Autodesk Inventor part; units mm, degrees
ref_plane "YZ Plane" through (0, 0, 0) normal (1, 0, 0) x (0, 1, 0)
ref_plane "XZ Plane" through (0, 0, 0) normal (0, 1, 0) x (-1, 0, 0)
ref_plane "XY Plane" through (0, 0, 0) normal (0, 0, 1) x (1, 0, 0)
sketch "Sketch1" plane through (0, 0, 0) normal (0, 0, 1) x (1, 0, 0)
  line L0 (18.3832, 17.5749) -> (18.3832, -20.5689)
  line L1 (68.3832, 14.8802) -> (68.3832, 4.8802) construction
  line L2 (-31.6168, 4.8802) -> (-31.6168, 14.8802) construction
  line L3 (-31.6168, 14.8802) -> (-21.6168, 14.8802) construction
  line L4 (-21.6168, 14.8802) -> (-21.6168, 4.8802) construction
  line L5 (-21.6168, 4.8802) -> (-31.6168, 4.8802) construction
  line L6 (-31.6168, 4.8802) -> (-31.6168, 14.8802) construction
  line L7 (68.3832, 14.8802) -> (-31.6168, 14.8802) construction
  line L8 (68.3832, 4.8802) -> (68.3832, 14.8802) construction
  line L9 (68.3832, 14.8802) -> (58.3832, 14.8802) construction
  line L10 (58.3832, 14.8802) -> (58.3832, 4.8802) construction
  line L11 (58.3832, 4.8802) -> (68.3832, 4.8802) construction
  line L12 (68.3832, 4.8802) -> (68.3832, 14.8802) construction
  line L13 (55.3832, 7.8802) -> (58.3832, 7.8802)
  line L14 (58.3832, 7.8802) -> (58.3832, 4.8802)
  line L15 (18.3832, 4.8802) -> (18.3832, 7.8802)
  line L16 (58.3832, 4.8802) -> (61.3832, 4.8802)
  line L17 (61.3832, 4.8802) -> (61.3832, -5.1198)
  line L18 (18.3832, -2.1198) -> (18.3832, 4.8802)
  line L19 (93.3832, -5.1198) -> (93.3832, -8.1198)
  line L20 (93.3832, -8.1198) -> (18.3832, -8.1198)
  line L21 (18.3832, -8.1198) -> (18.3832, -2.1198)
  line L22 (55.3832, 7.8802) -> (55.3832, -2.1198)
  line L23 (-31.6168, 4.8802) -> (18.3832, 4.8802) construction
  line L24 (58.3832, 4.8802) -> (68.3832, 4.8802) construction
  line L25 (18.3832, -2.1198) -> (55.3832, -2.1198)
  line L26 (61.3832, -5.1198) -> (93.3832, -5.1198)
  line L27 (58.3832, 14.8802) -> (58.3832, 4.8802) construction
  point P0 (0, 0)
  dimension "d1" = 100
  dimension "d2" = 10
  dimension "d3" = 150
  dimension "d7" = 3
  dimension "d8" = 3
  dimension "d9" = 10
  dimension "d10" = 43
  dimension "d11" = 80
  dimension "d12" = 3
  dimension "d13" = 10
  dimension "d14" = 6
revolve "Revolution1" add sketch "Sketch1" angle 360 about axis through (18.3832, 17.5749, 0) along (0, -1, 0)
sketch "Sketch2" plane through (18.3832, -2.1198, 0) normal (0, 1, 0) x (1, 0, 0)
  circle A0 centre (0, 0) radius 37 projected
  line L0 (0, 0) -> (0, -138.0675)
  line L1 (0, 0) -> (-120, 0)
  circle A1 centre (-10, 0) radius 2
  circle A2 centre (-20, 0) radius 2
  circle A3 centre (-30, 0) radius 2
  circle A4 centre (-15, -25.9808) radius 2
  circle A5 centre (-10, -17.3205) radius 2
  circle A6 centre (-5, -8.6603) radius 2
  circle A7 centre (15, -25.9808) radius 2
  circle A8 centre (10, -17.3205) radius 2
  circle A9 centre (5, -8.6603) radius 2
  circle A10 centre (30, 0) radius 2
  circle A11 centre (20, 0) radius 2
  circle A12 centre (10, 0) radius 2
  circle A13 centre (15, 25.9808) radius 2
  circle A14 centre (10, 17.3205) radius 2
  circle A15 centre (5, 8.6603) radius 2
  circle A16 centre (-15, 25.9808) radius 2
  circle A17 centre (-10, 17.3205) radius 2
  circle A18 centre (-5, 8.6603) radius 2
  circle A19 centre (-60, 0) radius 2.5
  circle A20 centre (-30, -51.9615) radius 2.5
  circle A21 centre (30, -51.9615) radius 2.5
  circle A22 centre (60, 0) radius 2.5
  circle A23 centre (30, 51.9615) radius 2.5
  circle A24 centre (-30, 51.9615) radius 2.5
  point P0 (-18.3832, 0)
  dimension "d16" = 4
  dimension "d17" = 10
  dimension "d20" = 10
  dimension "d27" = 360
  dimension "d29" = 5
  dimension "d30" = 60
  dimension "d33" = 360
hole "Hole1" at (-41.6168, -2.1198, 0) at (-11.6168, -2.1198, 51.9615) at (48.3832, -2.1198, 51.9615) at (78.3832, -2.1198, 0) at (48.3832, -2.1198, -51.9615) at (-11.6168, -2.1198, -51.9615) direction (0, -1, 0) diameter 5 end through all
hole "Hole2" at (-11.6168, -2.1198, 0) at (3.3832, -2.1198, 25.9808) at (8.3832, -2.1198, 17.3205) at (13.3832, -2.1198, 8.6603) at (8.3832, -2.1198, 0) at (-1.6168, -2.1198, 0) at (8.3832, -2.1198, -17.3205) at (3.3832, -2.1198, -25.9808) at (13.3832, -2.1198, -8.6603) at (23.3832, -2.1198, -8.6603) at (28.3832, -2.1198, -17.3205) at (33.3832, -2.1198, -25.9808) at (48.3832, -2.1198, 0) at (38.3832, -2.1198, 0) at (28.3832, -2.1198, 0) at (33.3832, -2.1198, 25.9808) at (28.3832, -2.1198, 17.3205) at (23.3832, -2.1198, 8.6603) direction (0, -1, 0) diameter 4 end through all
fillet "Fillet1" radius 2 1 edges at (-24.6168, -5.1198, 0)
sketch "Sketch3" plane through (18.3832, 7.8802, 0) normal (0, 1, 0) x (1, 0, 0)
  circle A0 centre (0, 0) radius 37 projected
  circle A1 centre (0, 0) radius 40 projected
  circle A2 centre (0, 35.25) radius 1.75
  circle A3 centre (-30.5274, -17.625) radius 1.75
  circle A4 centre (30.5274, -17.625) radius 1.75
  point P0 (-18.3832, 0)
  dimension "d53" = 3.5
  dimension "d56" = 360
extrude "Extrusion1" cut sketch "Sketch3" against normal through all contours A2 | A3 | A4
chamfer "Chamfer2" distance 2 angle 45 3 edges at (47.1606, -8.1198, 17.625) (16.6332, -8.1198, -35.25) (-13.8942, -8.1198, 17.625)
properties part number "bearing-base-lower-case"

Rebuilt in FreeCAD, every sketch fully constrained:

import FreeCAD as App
import Part
import Sketcher
from FreeCAD import Vector


def edges_at(feature, points):
    """Names of the edges that pass closest to the given points."""
    edges = feature.Shape.Edges
    near = lambda p: min(range(len(edges)), key=lambda i: edges[i].distToShape(Part.Vertex(*p))[0])
    return sorted({f"Edge{near(p) + 1}" for p in points})


def add_polygon(sketch, points):
    """Adds a closed chain of lines whose ends are joined by coincident constraints."""
    first, n = sketch.GeometryCount, len(points)
    for a, b in zip(points, points[1:] + points[:1]):
        sketch.addGeometry(Part.LineSegment(App.Vector(*a, 0), App.Vector(*b, 0)), False)
    for i in range(n):
        sketch.addConstraint(Sketcher.Constraint("Coincident", first + i, 2, first + (i + 1) % n, 1))

doc = App.newDocument("Part")
params = doc.addObject("Spreadsheet::Sheet", "Params")
for row, (alias, value) in enumerate([
    ("sketch1_width", "3 mm"),
    ("sketch1_height", "10 mm"),
    ("sketch1_width2", "75 mm"),
    ("revolution_angle", "360 deg"),
    ("sketch2_diameter", "5 mm"),
    ("hole_diameter", "5 mm"),
    ("sketch3_diameter", "4 mm"),
    ("hole2_diameter", "4 mm"),
    ("fillet_radius", "2 mm"),
    ("sketch4_diameter", "3.5 mm"),
    ("chamfer_size", "2 mm"),
], start=1):
    params.set(f"A{row}", alias)
    params.set(f"B{row}", "=" + value)
    params.setAlias(f"B{row}", alias)

body = doc.addObject("PartDesign::Body", "Body")

sketch1 = doc.addObject("Sketcher::SketchObject", "Sketch")
body.addObject(sketch1)
sketch1.AttachmentSupport = (doc.XY_Plane, [""])
sketch1.MapMode = "FlatFace"
add_polygon(sketch1, [(55.4, -2.1), (18.4, -2.1), (18.4, -8.1), (93.4, -8.1), (93.4, -5.1), (61.4, -5.1), (61.4, 4.9), (58.4, 4.9), (58.4, 7.9), (55.4, 7.9)])
sketch1.addGeometry(Part.LineSegment(Vector(18.4, 7.9, 0), Vector(18.4, -8.1, 0)), True)
sketch1.addConstraint(Sketcher.Constraint("Horizontal", 0))
sketch1.addConstraint(Sketcher.Constraint("Vertical", 1))
sketch1.addConstraint(Sketcher.Constraint("Horizontal", 2))
sketch1.addConstraint(Sketcher.Constraint("Vertical", 3))
sketch1.addConstraint(Sketcher.Constraint("Horizontal", 4))
sketch1.addConstraint(Sketcher.Constraint("Vertical", 5))
sketch1.addConstraint(Sketcher.Constraint("Horizontal", 6))
sketch1.addConstraint(Sketcher.Constraint("Vertical", 7))
sketch1.addConstraint(Sketcher.Constraint("Horizontal", 8))
sketch1.addConstraint(Sketcher.Constraint("Vertical", 9))
sketch1.addConstraint(Sketcher.Constraint("Vertical", 10))
sketch1.addConstraint(Sketcher.Constraint("Coincident", 10, 2, 1, 2))
sketch1.addConstraint(Sketcher.Constraint("Horizontal", 8, 2, 10, 1))
sketch1.addConstraint(Sketcher.Constraint("Equal", 6, 8))
sketch1.addConstraint(Sketcher.Constraint("Equal", 8, 3))
sketch1.addConstraint(Sketcher.Constraint("Equal", 3, 7))
sketch1.addConstraint(Sketcher.Constraint("Equal", 5, 9))
sketch1.addConstraint(Sketcher.Constraint("DistanceX", 6, 2, 6, 1, 3.0))
sketch1.addConstraint(Sketcher.Constraint("DistanceY", 5, 1, 5, 2, 10.0))
sketch1.addConstraint(Sketcher.Constraint("DistanceX", 0, 2, 4, 2, 43.0))
sketch1.addConstraint(Sketcher.Constraint("DistanceX", 2, 1, 2, 2, 75.0))
sketch1.addConstraint(Sketcher.Constraint("DistanceX", -1, 1, 0, 2, 18.3832))
sketch1.addConstraint(Sketcher.Constraint("DistanceY", 0, 2, -1, 1, 2.1198))
sketch1.setExpression("Constraints[27]", "Params.sketch1_width")
sketch1.setExpression("Constraints[28]", "Params.sketch1_height")
sketch1.setExpression("Constraints[30]", "Params.sketch1_width2")
revolution = doc.addObject("PartDesign::Revolution", "Revolution")
body.addObject(revolution)
revolution.Profile = sketch1
revolution.ReferenceAxis = (sketch1, ["Axis0"])
revolution.setExpression("Angle", "Params.revolution_angle")

sketch2 = doc.addObject("Sketcher::SketchObject", "Sketch001")
body.addObject(sketch2)
sketch2.AttachmentSupport = (doc.XZ_Plane, [""])
sketch2.MapMode = "FlatFace"
sketch2.AttachmentOffset = App.Placement(Vector(0, 0, 2.1198), App.Rotation())
sketch2.addGeometry(Part.Circle(Vector(-41.6, 0, 0), Vector(0, 0, 1), 2.5), False)
sketch2.addGeometry(Part.Circle(Vector(-11.6, 52, 0), Vector(0, 0, 1), 2.5), False)
sketch2.addGeometry(Part.Circle(Vector(48.4, 52, 0), Vector(0, 0, 1), 2.5), False)
sketch2.addGeometry(Part.Circle(Vector(78.4, 0, 0), Vector(0, 0, 1), 2.5), False)
sketch2.addGeometry(Part.Circle(Vector(48.4, -52, 0), Vector(0, 0, 1), 2.5), False)
sketch2.addGeometry(Part.Circle(Vector(-11.6, -52, 0), Vector(0, 0, 1), 2.5), False)
sketch2.addConstraint(Sketcher.Constraint("Equal", 0, 1))
sketch2.addConstraint(Sketcher.Constraint("Equal", 1, 2))
sketch2.addConstraint(Sketcher.Constraint("Equal", 2, 3))
sketch2.addConstraint(Sketcher.Constraint("Equal", 3, 4))
sketch2.addConstraint(Sketcher.Constraint("Equal", 4, 5))
sketch2.addConstraint(Sketcher.Constraint("Symmetric", 2, 3, 4, 3, -1))
sketch2.addConstraint(Sketcher.Constraint("Symmetric", 1, 3, 5, 3, -1))
sketch2.addConstraint(Sketcher.Constraint("PointOnObject", 0, 3, -1))
sketch2.addConstraint(Sketcher.Constraint("PointOnObject", 3, 3, -1))
sketch2.addConstraint(Sketcher.Constraint("Horizontal", 1, 3, 2, 3))
sketch2.addConstraint(Sketcher.Constraint("Diameter", 0, 5.0))
sketch2.addConstraint(Sketcher.Constraint("DistanceX", 0, 3, 1, 3, 30.0))
sketch2.addConstraint(Sketcher.Constraint("DistanceX", 1, 3, 2, 3, 60.0))
sketch2.addConstraint(Sketcher.Constraint("DistanceX", 2, 3, 3, 3, 30.0))
sketch2.addConstraint(Sketcher.Constraint("DistanceY", 4, 3, 2, 3, 103.923))
sketch2.addConstraint(Sketcher.Constraint("DistanceX", 0, 3, -1, 1, 41.6168))
sketch2.setExpression("Constraints[10]", "Params.sketch2_diameter")
doc.recompute()
hole = doc.addObject("PartDesign::Hole", "Hole")
body.addObject(hole)
hole.Profile = sketch2
hole.ThreadType = "None"
hole.setExpression("Diameter", "Params.hole_diameter")
hole.DepthType = "ThroughAll"
hole.Reversed = True

sketch3 = doc.addObject("Sketcher::SketchObject", "Sketch002")
body.addObject(sketch3)
sketch3.AttachmentSupport = (doc.XZ_Plane, [""])
sketch3.MapMode = "FlatFace"
sketch3.AttachmentOffset = App.Placement(Vector(0, 0, 2.1198), App.Rotation())
sketch3.addGeometry(Part.Circle(Vector(-11.6, 0, 0), Vector(0, 0, 1), 2), False)
sketch3.addGeometry(Part.Circle(Vector(3.4, 26, 0), Vector(0, 0, 1), 2), False)
sketch3.addGeometry(Part.Circle(Vector(8.4, 17.3, 0), Vector(0, 0, 1), 2), False)
sketch3.addGeometry(Part.Circle(Vector(13.4, 8.7, 0), Vector(0, 0, 1), 2), False)
sketch3.addGeometry(Part.Circle(Vector(8.4, 0, 0), Vector(0, 0, 1), 2), False)
sketch3.addGeometry(Part.Circle(Vector(-1.6, 0, 0), Vector(0, 0, 1), 2), False)
sketch3.addGeometry(Part.Circle(Vector(8.4, -17.3, 0), Vector(0, 0, 1), 2), False)
sketch3.addGeometry(Part.Circle(Vector(3.4, -26, 0), Vector(0, 0, 1), 2), False)
sketch3.addGeometry(Part.Circle(Vector(13.4, -8.7, 0), Vector(0, 0, 1), 2), False)
sketch3.addGeometry(Part.Circle(Vector(23.4, -8.7, 0), Vector(0, 0, 1), 2), False)
sketch3.addGeometry(Part.Circle(Vector(28.4, -17.3, 0), Vector(0, 0, 1), 2), False)
sketch3.addGeometry(Part.Circle(Vector(33.4, -26, 0), Vector(0, 0, 1), 2), False)
sketch3.addGeometry(Part.Circle(Vector(48.4, 0, 0), Vector(0, 0, 1), 2), False)
sketch3.addGeometry(Part.Circle(Vector(38.4, 0, 0), Vector(0, 0, 1), 2), False)
sketch3.addGeometry(Part.Circle(Vector(28.4, 0, 0), Vector(0, 0, 1), 2), False)
sketch3.addGeometry(Part.Circle(Vector(33.4, 26, 0), Vector(0, 0, 1), 2), False)
sketch3.addGeometry(Part.Circle(Vector(28.4, 17.3, 0), Vector(0, 0, 1), 2), False)
sketch3.addGeometry(Part.Circle(Vector(23.4, 8.7, 0), Vector(0, 0, 1), 2), False)
sketch3.addConstraint(Sketcher.Constraint("Equal", 0, 1))
sketch3.addConstraint(Sketcher.Constraint("Equal", 1, 2))
sketch3.addConstraint(Sketcher.Constraint("Equal", 2, 3))
sketch3.addConstraint(Sketcher.Constraint("Equal", 3, 4))
sketch3.addConstraint(Sketcher.Constraint("Equal", 4, 5))
sketch3.addConstraint(Sketcher.Constraint("Equal", 5, 6))
sketch3.addConstraint(Sketcher.Constraint("Equal", 6, 7))
sketch3.addConstraint(Sketcher.Constraint("Equal", 7, 8))
sketch3.addConstraint(Sketcher.Constraint("Equal", 8, 9))
sketch3.addConstraint(Sketcher.Constraint("Equal", 9, 10))
sketch3.addConstraint(Sketcher.Constraint("Equal", 10, 11))
sketch3.addConstraint(Sketcher.Constraint("Equal", 11, 12))
sketch3.addConstraint(Sketcher.Constraint("Equal", 12, 13))
sketch3.addConstraint(Sketcher.Constraint("Equal", 13, 14))
sketch3.addConstraint(Sketcher.Constraint("Equal", 14, 15))
sketch3.addConstraint(Sketcher.Constraint("Equal", 15, 16))
sketch3.addConstraint(Sketcher.Constraint("Equal", 16, 17))
sketch3.addConstraint(Sketcher.Constraint("Symmetric", 2, 3, 6, 3, -1))
sketch3.addConstraint(Sketcher.Constraint("Symmetric", 1, 3, 7, 3, -1))
sketch3.addConstraint(Sketcher.Constraint("Symmetric", 3, 3, 8, 3, -1))
sketch3.addConstraint(Sketcher.Constraint("Symmetric", 11, 3, 15, 3, -1))
sketch3.addConstraint(Sketcher.Constraint("Symmetric", 10, 3, 16, 3, -1))
sketch3.addConstraint(Sketcher.Constraint("Symmetric", 9, 3, 17, 3, -1))
sketch3.addConstraint(Sketcher.Constraint("PointOnObject", 0, 3, -1))
sketch3.addConstraint(Sketcher.Constraint("PointOnObject", 4, 3, -1))
sketch3.addConstraint(Sketcher.Constraint("PointOnObject", 5, 3, -1))
sketch3.addConstraint(Sketcher.Constraint("PointOnObject", 12, 3, -1))
sketch3.addConstraint(Sketcher.Constraint("PointOnObject", 13, 3, -1))
sketch3.addConstraint(Sketcher.Constraint("PointOnObject", 14, 3, -1))
sketch3.addConstraint(Sketcher.Constraint("Horizontal", 8, 3, 9, 3))
sketch3.addConstraint(Sketcher.Constraint("Horizontal", 6, 3, 10, 3))
sketch3.addConstraint(Sketcher.Constraint("Horizontal", 7, 3, 11, 3))
sketch3.addConstraint(Sketcher.Constraint("Vertical", 2, 3, 4, 3))
sketch3.addConstraint(Sketcher.Constraint("Vertical", 10, 3, 14, 3))
sketch3.addConstraint(Sketcher.Constraint("Diameter", 0, 4.0))
sketch3.addConstraint(Sketcher.Constraint("DistanceX", 0, 3, 1, 3, 15.0))
sketch3.addConstraint(Sketcher.Constraint("DistanceX", 1, 3, 2, 3, 5.0))
sketch3.addConstraint(Sketcher.Constraint("DistanceX", 2, 3, 3, 3, 5.0))
sketch3.addConstraint(Sketcher.Constraint("DistanceX", 0, 3, 5, 3, 10.0))
sketch3.addConstraint(Sketcher.Constraint("DistanceX", 8, 3, 9, 3, 10.0))
sketch3.addConstraint(Sketcher.Constraint("DistanceX", 9, 3, 10, 3, 5.0))
sketch3.addConstraint(Sketcher.Constraint("DistanceX", 10, 3, 11, 3, 5.0))
sketch3.addConstraint(Sketcher.Constraint("DistanceX", 10, 3, 12, 3, 20.0))
sketch3.addConstraint(Sketcher.Constraint("DistanceX", 13, 3, 12, 3, 10.0))
sketch3.addConstraint(Sketcher.Constraint("DistanceY", 6, 3, 2, 3, 34.641))
sketch3.addConstraint(Sketcher.Constraint("DistanceY", 7, 3, 3, 3, 34.641))
sketch3.addConstraint(Sketcher.Constraint("DistanceX", 0, 3, -1, 1, 11.6168))
sketch3.addConstraint(Sketcher.Constraint("DistanceY", -1, 1, 1, 3, 25.9808))
sketch3.setExpression("Constraints[34]", "Params.sketch3_diameter")
doc.recompute()
hole2 = doc.addObject("PartDesign::Hole", "Hole001")
body.addObject(hole2)
hole2.Profile = sketch3
hole2.ThreadType = "None"
hole2.setExpression("Diameter", "Params.hole2_diameter")
hole2.DepthType = "ThroughAll"
hole2.Reversed = True
doc.recompute()

fillet = doc.addObject("PartDesign::Fillet", "Fillet")
body.addObject(fillet)
fillet.Base = (hole2, edges_at(hole2, [(-24.617, -5.12, 0)]))
fillet.setExpression("Radius", "Params.fillet_radius")

sketch4 = doc.addObject("Sketcher::SketchObject", "Sketch003")
body.addObject(sketch4)
sketch4.AttachmentSupport = (doc.XZ_Plane, [""])
sketch4.MapMode = "FlatFace"
sketch4.AttachmentOffset = App.Placement(Vector(0, 0, -7.8802), App.Rotation())
sketch4.addGeometry(Part.Circle(Vector(18.4, -35.2, 0), Vector(0, 0, 1), 1.8), False)
sketch4.addGeometry(Part.Circle(Vector(-12.1, 17.6, 0), Vector(0, 0, 1), 1.8), False)
sketch4.addGeometry(Part.Circle(Vector(48.9, 17.6, 0), Vector(0, 0, 1), 1.8), False)
sketch4.addConstraint(Sketcher.Constraint("Equal", 0, 1))
sketch4.addConstraint(Sketcher.Constraint("Equal", 1, 2))
sketch4.addConstraint(Sketcher.Constraint("Horizontal", 1, 3, 2, 3))
sketch4.addConstraint(Sketcher.Constraint("Diameter", 0, 3.5))
sketch4.addConstraint(Sketcher.Constraint("DistanceY", 0, 3, -1, 1, 35.25))
sketch4.addConstraint(Sketcher.Constraint("DistanceY", -1, 1, 1, 3, 17.625))
sketch4.addConstraint(Sketcher.Constraint("DistanceX", -1, 1, 0, 3, 18.3832))
sketch4.addConstraint(Sketcher.Constraint("DistanceX", 1, 3, -1, 1, 12.1442))
sketch4.addConstraint(Sketcher.Constraint("DistanceX", -1, 1, 2, 3, 48.9106))
sketch4.setExpression("Constraints[3]", "Params.sketch4_diameter")
pocket1 = doc.addObject("PartDesign::Pocket", "Pocket")
body.addObject(pocket1)
pocket1.Profile = sketch4
pocket1.Type = "ThroughAll"
pocket1.Reversed = True
doc.recompute()

chamfer = doc.addObject("PartDesign::Chamfer", "Chamfer")
body.addObject(chamfer)
chamfer.Base = (pocket1, edges_at(pocket1, [(47.161, -8.12, 17.625), (16.633, -8.12, -35.25), (-13.894, -8.12, 17.625)]))
chamfer.setExpression("Size", "Params.chamfer_size")

doc.recompute()
